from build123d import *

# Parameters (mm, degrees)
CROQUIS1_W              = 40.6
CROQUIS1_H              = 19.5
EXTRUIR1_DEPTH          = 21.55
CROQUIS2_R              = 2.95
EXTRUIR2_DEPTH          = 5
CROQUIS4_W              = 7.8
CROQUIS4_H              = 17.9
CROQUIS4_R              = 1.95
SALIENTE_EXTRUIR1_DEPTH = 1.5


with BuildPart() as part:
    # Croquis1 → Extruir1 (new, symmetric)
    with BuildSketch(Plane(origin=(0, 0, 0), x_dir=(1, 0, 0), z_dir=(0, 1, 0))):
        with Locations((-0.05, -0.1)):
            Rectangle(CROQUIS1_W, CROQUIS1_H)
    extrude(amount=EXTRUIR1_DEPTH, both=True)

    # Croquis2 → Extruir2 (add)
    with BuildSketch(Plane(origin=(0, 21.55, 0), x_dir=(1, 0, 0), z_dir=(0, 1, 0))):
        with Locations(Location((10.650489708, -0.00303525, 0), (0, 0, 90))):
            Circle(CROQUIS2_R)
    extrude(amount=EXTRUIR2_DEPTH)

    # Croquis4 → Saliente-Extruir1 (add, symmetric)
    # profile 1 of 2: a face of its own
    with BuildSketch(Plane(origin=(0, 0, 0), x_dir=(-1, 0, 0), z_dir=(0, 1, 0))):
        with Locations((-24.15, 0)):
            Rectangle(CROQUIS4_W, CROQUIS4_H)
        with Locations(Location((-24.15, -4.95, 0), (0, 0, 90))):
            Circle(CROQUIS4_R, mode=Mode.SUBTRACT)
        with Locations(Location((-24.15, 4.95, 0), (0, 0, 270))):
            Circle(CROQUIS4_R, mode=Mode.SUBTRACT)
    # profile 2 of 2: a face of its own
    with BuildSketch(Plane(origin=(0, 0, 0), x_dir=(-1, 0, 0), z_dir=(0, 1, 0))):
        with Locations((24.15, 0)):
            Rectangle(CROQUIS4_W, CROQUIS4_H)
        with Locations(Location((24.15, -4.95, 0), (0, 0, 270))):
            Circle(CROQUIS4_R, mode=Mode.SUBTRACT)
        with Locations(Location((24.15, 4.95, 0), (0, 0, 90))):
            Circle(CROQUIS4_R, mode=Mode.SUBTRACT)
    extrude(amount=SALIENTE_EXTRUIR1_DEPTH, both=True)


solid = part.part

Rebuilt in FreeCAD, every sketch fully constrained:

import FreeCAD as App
import Part
import Sketcher
Q = App.Units.Quantity


def add_polygon(sketch, points):
    """Adds a closed chain of lines whose ends are joined by coincident constraints."""
    first, n = sketch.GeometryCount, len(points)
    for a, b in zip(points, points[1:] + points[:1]):
        sketch.addGeometry(Part.LineSegment(App.Vector(*a, 0), App.Vector(*b, 0)), False)
    for i in range(n):
        sketch.addConstraint(Sketcher.Constraint("Coincident", first + i, 2, first + (i + 1) % n, 1))

doc = App.newDocument("Part")
body = doc.addObject("PartDesign::Body", "Body")

# Sketch on XZ plane
sketch1 = body.newObject("Sketcher::SketchObject", "Sketch")
sketch1.AttachmentSupport = (doc.getObject("XZ_Plane"), [""])
sketch1.MapMode = "FlatFace"
add_polygon(sketch1, [(-20, -10), (-20, 10), (20, 10), (20, -10)])  # lines 0-3
sketch1.addConstraint(Sketcher.Constraint("Vertical", 0))
sketch1.addConstraint(Sketcher.Constraint("Horizontal", 1))
sketch1.addConstraint(Sketcher.Constraint("Vertical", 2))
sketch1.addConstraint(Sketcher.Constraint("Horizontal", 3))
sketch1.addConstraint(Sketcher.Constraint("DistanceX", 1, 1, 1, 2, Q("40.6 mm")))
sketch1.addConstraint(Sketcher.Constraint("DistanceY", 0, 1, 0, 2, Q("19.5 mm")))
sketch1.addConstraint(Sketcher.Constraint("DistanceX", 0, 2, -1, 1, Q("20.35 mm")))
sketch1.addConstraint(Sketcher.Constraint("DistanceY", -1, 1, 0, 2, Q("9.85 mm")))
pad1 = body.newObject("PartDesign::Pad", "Pad")
pad1.Profile = sketch1
pad1.Length = 43.1
pad1.Midplane = True

# Sketch on XZ plane
sketch2 = body.newObject("Sketcher::SketchObject", "Sketch001")
sketch2.AttachmentSupport = (doc.getObject("XZ_Plane"), [""])
sketch2.MapMode = "FlatFace"
sketch2.AttachmentOffset = App.Placement(App.Vector(0, 0, -21.55), App.Rotation())
sketch2.addGeometry(Part.Circle(App.Vector(10.7, 0, 0), App.Vector(0, 0, 1), 3), False)
sketch2.addConstraint(Sketcher.Constraint("Diameter", 0, Q("5.9 mm")))
sketch2.addConstraint(Sketcher.Constraint("DistanceX", -1, 1, 0, 3, Q("10.65049 mm")))
sketch2.addConstraint(Sketcher.Constraint("DistanceY", -1, 1, 0, 3, Q("0.003035 mm")))
pad2 = body.newObject("PartDesign::Pad", "Pad001")
pad2.Profile = sketch2
pad2.Length = 5
pad2.Reversed = True

# Sketch on XZ plane
sketch3 = body.newObject("Sketcher::SketchObject", "Sketch002")
sketch3.AttachmentSupport = (doc.getObject("XZ_Plane"), [""])
sketch3.MapMode = "FlatFace"
add_polygon(sketch3, [(28.1, 8.9), (28.1, -8.9), (20.2, -8.9), (20.2, 8.9)])  # lines 0-3
sketch3.addGeometry(Part.Circle(App.Vector(24.1, -5, 0), App.Vector(0, 0, 1), 1.9), False)  # 4
sketch3.addGeometry(Part.Circle(App.Vector(24.1, 5, 0), App.Vector(0, 0, 1), 1.9), False)  # 5
add_polygon(sketch3, [(-20.2, 8.9), (-20.2, -8.9), (-28.1, -8.9), (-28.1, 8.9)])  # lines 6-9
sketch3.addGeometry(Part.Circle(App.Vector(-24.1, -5, 0), App.Vector(0, 0, 1), 1.9), False)  # 10
sketch3.addGeometry(Part.Circle(App.Vector(-24.1, 5, 0), App.Vector(0, 0, 1), 1.9), False)  # 11
sketch3.addConstraint(Sketcher.Constraint("Vertical", 0))
sketch3.addConstraint(Sketcher.Constraint("Horizontal", 1))
sketch3.addConstraint(Sketcher.Constraint("Vertical", 2))
sketch3.addConstraint(Sketcher.Constraint("Horizontal", 3))
sketch3.addConstraint(Sketcher.Constraint("Vertical", 6))
sketch3.addConstraint(Sketcher.Constraint("Horizontal", 7))
sketch3.addConstraint(Sketcher.Constraint("Vertical", 8))
sketch3.addConstraint(Sketcher.Constraint("Horizontal", 9))
sketch3.addConstraint(Sketcher.Constraint("Equal", 4, 5))
sketch3.addConstraint(Sketcher.Constraint("Equal", 5, 10))
sketch3.addConstraint(Sketcher.Constraint("Equal", 10, 11))
sketch3.addConstraint(Sketcher.Constraint("Symmetric", 5, 3, 10, 3, -1, 1))
sketch3.addConstraint(Sketcher.Constraint("Symmetric", 4, 3, 11, 3, -1, 1))
sketch3.addConstraint(Sketcher.Constraint("Symmetric", 2, 2, 6, 2, -1, 1))
sketch3.addConstraint(Sketcher.Constraint("Symmetric", 0, 2, 8, 2, -1, 1))
sketch3.addConstraint(Sketcher.Constraint("Symmetric", 4, 3, 10, 3, -2))
sketch3.addConstraint(Sketcher.Constraint("Horizontal", 1, 2, 6, 2))
sketch3.addConstraint(Sketcher.Constraint("Diameter", 4, Q("3.9 mm")))
sketch3.addConstraint(Sketcher.Constraint("DistanceX", 1, 2, 1, 1, Q("7.8 mm")))
sketch3.addConstraint(Sketcher.Constraint("DistanceY", 0, 2, 0, 1, Q("17.9 mm")))
sketch3.addConstraint(Sketcher.Constraint("DistanceY", 0, 2, 4, 3, Q("4 mm")))
sketch3.addConstraint(Sketcher.Constraint("DistanceX", 10, 3, 4, 3, Q("48.3 mm")))
sketch3.addConstraint(Sketcher.Constraint("DistanceX", 4, 3, 0, 2, Q("3.9 mm")))
pad3 = body.newObject("PartDesign::Pad", "Pad002")
pad3.Profile = sketch3
pad3.Length = 3
pad3.Midplane = True

doc.recompute()
